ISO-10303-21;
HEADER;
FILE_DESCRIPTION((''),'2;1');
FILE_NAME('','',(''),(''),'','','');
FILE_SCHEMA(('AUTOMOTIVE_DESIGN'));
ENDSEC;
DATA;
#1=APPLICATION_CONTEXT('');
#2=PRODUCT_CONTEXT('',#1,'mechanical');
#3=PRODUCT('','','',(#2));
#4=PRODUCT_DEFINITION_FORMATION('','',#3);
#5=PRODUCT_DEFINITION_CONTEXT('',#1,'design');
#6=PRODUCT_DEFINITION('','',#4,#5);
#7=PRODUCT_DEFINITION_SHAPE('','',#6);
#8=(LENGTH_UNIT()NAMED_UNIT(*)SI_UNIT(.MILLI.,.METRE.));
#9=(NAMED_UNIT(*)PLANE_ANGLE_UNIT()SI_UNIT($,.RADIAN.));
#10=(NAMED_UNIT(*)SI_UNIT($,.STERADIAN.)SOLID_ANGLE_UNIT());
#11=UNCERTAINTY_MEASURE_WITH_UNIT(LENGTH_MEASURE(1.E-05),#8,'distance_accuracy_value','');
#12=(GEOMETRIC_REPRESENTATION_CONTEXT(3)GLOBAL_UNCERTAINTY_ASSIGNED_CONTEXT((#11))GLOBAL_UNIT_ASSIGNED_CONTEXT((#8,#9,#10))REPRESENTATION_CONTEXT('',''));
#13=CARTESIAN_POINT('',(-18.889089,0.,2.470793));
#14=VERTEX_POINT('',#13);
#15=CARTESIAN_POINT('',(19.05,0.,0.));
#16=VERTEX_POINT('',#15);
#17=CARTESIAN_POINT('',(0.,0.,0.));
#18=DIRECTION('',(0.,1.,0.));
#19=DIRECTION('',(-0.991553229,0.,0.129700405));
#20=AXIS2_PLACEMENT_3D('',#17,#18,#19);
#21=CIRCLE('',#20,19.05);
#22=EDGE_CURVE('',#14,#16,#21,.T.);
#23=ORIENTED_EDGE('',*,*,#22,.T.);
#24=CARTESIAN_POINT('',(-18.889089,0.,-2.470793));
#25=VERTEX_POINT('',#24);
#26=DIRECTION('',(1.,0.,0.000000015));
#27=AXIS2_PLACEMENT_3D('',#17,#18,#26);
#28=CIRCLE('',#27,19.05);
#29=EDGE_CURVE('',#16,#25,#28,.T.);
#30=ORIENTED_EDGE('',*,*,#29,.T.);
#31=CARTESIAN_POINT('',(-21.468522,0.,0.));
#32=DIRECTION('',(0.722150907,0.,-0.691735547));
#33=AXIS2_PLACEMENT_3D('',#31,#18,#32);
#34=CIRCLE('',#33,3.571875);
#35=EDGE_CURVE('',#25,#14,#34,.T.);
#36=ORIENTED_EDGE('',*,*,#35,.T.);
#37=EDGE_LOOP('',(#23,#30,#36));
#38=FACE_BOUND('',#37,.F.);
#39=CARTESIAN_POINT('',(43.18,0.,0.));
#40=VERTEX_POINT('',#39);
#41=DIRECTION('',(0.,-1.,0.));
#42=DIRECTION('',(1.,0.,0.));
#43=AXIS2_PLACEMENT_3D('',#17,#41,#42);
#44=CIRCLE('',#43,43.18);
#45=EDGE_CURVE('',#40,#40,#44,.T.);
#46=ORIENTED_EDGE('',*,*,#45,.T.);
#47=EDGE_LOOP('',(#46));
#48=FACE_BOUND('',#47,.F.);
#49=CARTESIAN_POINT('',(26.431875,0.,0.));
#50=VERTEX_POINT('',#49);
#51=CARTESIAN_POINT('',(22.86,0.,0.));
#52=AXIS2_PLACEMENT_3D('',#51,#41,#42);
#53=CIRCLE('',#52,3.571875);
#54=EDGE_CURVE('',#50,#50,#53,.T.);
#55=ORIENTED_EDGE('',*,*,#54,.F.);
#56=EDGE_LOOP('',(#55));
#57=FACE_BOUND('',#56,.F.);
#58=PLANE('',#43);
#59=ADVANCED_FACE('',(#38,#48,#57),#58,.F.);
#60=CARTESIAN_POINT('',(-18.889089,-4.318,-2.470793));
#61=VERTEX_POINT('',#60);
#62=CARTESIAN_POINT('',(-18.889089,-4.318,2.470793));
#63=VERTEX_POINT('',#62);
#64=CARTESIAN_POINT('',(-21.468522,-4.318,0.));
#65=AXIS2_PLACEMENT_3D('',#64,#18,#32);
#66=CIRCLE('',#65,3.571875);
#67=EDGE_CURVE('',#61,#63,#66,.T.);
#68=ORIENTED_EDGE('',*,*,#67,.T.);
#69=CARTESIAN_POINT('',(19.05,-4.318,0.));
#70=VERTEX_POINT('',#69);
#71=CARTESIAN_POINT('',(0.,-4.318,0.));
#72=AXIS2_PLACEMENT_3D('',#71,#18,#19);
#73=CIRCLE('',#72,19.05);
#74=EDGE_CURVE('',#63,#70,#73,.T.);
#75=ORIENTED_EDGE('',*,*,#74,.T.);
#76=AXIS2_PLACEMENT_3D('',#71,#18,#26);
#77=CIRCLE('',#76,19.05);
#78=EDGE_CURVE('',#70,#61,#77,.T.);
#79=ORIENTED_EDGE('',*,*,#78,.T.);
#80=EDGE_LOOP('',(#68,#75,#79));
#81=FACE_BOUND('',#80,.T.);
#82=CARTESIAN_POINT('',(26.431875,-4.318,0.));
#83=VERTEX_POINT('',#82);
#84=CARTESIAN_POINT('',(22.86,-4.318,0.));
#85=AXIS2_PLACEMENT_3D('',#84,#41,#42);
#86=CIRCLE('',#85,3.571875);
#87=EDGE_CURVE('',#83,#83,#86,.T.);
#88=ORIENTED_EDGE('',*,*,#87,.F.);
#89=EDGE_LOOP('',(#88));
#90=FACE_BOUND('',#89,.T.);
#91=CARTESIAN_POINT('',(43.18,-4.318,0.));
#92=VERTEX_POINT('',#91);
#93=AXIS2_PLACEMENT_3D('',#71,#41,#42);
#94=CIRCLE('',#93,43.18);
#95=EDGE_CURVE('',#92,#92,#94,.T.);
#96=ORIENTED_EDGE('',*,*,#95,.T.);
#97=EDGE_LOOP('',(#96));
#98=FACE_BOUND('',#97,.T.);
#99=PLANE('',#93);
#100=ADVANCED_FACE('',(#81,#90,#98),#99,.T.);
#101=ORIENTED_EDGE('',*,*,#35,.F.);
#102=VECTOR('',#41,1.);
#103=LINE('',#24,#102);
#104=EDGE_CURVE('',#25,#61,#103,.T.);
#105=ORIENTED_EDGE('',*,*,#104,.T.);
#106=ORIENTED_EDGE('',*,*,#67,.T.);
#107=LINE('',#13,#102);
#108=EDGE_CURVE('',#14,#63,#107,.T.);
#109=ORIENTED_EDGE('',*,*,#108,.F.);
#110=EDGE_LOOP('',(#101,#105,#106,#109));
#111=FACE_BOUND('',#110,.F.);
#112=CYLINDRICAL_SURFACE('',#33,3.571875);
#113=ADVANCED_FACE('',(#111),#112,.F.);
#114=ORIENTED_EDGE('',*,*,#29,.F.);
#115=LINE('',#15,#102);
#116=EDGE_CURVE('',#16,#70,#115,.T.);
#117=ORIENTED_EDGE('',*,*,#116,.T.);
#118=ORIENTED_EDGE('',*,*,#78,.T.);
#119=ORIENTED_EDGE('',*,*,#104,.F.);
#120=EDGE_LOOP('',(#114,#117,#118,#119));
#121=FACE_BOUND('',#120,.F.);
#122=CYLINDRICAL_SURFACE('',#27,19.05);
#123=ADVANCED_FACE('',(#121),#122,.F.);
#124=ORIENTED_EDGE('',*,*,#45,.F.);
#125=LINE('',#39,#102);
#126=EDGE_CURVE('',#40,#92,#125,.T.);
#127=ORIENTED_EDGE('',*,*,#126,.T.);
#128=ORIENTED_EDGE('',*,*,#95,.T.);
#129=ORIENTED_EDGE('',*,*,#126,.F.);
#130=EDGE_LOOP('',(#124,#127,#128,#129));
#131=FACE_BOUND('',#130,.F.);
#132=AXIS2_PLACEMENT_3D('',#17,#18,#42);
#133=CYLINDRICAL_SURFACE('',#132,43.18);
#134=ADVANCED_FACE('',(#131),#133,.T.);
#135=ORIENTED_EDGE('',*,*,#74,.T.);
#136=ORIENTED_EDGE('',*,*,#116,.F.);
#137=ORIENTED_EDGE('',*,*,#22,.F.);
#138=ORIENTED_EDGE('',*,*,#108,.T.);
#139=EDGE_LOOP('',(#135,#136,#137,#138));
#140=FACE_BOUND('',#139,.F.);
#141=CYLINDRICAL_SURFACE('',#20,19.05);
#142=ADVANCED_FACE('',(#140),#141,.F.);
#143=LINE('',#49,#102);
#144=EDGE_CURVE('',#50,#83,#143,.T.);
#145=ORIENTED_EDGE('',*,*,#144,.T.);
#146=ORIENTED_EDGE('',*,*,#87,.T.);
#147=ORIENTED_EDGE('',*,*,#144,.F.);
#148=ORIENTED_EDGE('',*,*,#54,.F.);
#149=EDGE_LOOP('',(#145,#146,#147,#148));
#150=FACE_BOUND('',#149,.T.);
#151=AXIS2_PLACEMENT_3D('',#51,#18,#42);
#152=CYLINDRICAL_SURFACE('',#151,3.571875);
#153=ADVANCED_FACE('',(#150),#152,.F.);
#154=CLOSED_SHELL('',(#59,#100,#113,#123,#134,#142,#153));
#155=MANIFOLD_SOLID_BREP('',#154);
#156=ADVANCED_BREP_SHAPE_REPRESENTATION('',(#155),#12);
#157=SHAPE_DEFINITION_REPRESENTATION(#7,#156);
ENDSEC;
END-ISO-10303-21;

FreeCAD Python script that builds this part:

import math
import FreeCAD as App
import Part
import Sketcher

V = App.Vector
Q = App.Units.Quantity

doc = App.newDocument("Part")
body = doc.addObject("PartDesign::Body", "Body")

# Sketch on XZ plane
sketch1 = doc.addObject("Sketcher::SketchObject", "Sketch")
body.addObject(sketch1)
sketch1.AttachmentSupport = (doc.XZ_Plane, [""])
sketch1.MapMode = "FlatFace"
sketch1.addGeometry(Part.Circle(V(0, 0, 0), V(0, 0, 1), 43.2), False)
sketch1.addGeometry(Part.Circle(V(22.9, 0, 0), V(0, 0, 1), 3.6), False)
sketch1.addGeometry(Part.ArcOfCircle(Part.Circle(V(0, 0, 0), V(0, 0, 1), 19), math.radians(-173), math.radians(0)), False)
sketch1.addGeometry(Part.ArcOfCircle(Part.Circle(V(-21.5, 0, 0), V(0, 0, 1), 3.6), math.radians(44), math.radians(316)), False)
sketch1.addGeometry(Part.ArcOfCircle(Part.Circle(V(0, 0, 0), V(0, 0, 1), 19), math.radians(0), math.radians(173)), False)
sketch1.addConstraint(Sketcher.Constraint("Coincident", 2, 1, 3, 2))
sketch1.addConstraint(Sketcher.Constraint("Coincident", 3, 1, 4, 2))
sketch1.addConstraint(Sketcher.Constraint("Tangent", 4, 1, 2, 2))
sketch1.addConstraint(Sketcher.Constraint("Coincident", 0, 3, -1, 1))
sketch1.addConstraint(Sketcher.Constraint("Coincident", 2, 3, -1, 1))
sketch1.addConstraint(Sketcher.Constraint("Equal", 1, 3))
sketch1.addConstraint(Sketcher.Constraint("Equal", 2, 4))
sketch1.addConstraint(Sketcher.Constraint("PointOnObject", 1, 3, -1))
sketch1.addConstraint(Sketcher.Constraint("PointOnObject", 3, 3, -1))
sketch1.addConstraint(Sketcher.Constraint("PointOnObject", 4, 1, -1))
sketch1.addConstraint(Sketcher.Constraint("Diameter", 0, Q("3.4 in")))
sketch1.addConstraint(Sketcher.Constraint("Radius", 2, Q("0.75 in")))
sketch1.addConstraint(Sketcher.Constraint("Diameter", 1, Q("0.28125 in")))
sketch1.addConstraint(Sketcher.Constraint("DistanceX", -1, 1, 1, 3, Q("0.9 in")))
sketch1.addConstraint(Sketcher.Constraint("DistanceX", 3, 3, -1, 1, Q("21.468522 mm")))
pad1 = doc.addObject("PartDesign::Pad", "Pad")
body.addObject(pad1)
pad1.Profile = sketch1
pad1.Length = Q("0.17 in")

doc.recompute()
